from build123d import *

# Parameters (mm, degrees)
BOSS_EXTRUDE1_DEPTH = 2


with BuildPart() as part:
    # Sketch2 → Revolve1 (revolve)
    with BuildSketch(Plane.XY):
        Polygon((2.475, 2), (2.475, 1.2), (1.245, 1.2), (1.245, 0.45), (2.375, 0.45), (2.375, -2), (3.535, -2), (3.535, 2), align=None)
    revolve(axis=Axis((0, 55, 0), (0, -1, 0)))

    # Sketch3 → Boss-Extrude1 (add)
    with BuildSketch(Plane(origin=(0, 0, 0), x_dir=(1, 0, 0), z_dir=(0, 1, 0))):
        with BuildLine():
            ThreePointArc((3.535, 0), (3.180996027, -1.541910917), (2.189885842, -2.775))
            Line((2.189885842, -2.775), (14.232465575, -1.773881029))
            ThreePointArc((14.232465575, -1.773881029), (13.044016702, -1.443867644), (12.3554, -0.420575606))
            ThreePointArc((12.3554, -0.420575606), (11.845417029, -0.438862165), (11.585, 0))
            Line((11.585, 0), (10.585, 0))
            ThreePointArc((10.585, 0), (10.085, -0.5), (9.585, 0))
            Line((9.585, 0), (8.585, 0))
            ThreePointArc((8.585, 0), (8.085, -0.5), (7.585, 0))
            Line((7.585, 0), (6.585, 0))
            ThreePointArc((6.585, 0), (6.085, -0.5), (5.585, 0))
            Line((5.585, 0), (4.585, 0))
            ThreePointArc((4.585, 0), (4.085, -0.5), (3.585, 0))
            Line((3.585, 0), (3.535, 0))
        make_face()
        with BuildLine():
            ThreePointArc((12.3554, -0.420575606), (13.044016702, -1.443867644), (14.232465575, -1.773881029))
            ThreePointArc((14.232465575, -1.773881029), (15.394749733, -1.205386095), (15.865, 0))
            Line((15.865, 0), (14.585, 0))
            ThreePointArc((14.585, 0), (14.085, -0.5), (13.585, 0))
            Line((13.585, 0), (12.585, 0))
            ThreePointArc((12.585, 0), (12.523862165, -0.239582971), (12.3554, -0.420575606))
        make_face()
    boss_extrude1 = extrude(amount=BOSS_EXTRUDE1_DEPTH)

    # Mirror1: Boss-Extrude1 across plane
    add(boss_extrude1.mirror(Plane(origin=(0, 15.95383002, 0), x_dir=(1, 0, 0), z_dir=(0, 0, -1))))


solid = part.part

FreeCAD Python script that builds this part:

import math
import FreeCAD as App
import Part
import Sketcher
from FreeCAD import Vector
Q = App.Units.Quantity

doc = App.newDocument("Part")
params = doc.addObject("Spreadsheet::Sheet", "Params")
for row, (alias, value) in enumerate([
    ("sketch1_height", "4 mm"),
    ("sketch1_height2", "0.8 mm"),
    ("sketch1_width", "1.23 mm"),
    ("sketch1_width2", "1.13 mm"),
    ("sketch1_width3", "1.16 mm"),
    ("revolution_angle", "360 deg"),
    ("sketch2_radius", "0.5 mm"),
    ("sketch2_width", "1 mm"),
    ("sketch2_radius2", "1.78 mm"),
    ("sketch2_width2", "0.05 mm"),
    ("pad1_length", "2 mm"),
], start=1):
    params.set(f"A{row}", alias)
    params.set(f"B{row}", "=" + value)
    params.setAlias(f"B{row}", alias)

body = doc.addObject("PartDesign::Body", "Body")

sketch1 = body.newObject("Sketcher::SketchObject", "Sketch")
sketch1.AttachmentSupport = (doc.getObject("XY_Plane"), [""])
sketch1.MapMode = "FlatFace"
sketch1.addGeometry(Part.LineSegment(Vector(2.5, 2, 0), Vector(2.5, 1.2, 0)), False)
sketch1.addGeometry(Part.LineSegment(Vector(2.5, 1.2, 0), Vector(1.2, 1.2, 0)), False)
sketch1.addGeometry(Part.LineSegment(Vector(1.2, 1.2, 0), Vector(1.2, 0.5, 0)), False)
sketch1.addGeometry(Part.LineSegment(Vector(1.2, 0.5, 0), Vector(2.4, 0.5, 0)), False)
sketch1.addGeometry(Part.LineSegment(Vector(2.4, 0.5, 0), Vector(2.4, -2, 0)), False)
sketch1.addGeometry(Part.LineSegment(Vector(2.4, -2, 0), Vector(3.5, -2, 0)), False)
sketch1.addGeometry(Part.LineSegment(Vector(3.5, -2, 0), Vector(3.5, 2, 0)), False)
sketch1.addGeometry(Part.LineSegment(Vector(3.5, 2, 0), Vector(2.5, 2, 0)), False)
sketch1.addConstraint(Sketcher.Constraint("Coincident", 0, 2, 1, 1))
sketch1.addConstraint(Sketcher.Constraint("Coincident", 1, 2, 2, 1))
sketch1.addConstraint(Sketcher.Constraint("Coincident", 2, 2, 3, 1))
sketch1.addConstraint(Sketcher.Constraint("Coincident", 3, 2, 4, 1))
sketch1.addConstraint(Sketcher.Constraint("Coincident", 4, 2, 5, 1))
sketch1.addConstraint(Sketcher.Constraint("Coincident", 5, 2, 6, 1))
sketch1.addConstraint(Sketcher.Constraint("Coincident", 6, 2, 7, 1))
sketch1.addConstraint(Sketcher.Constraint("Coincident", 7, 2, 0, 1))
sketch1.addConstraint(Sketcher.Constraint("Vertical", 0))
sketch1.addConstraint(Sketcher.Constraint("Horizontal", 1))
sketch1.addConstraint(Sketcher.Constraint("Vertical", 2))
sketch1.addConstraint(Sketcher.Constraint("Horizontal", 3))
sketch1.addConstraint(Sketcher.Constraint("Vertical", 4))
sketch1.addConstraint(Sketcher.Constraint("Horizontal", 5))
sketch1.addConstraint(Sketcher.Constraint("Vertical", 6))
sketch1.addConstraint(Sketcher.Constraint("Horizontal", 7))
sketch1.addConstraint(Sketcher.Constraint("DistanceY", 6, 1, 6, 2, Q("4 mm")))
sketch1.addConstraint(Sketcher.Constraint("DistanceY", 0, 2, 0, 1, Q("0.8 mm")))
sketch1.addConstraint(Sketcher.Constraint("DistanceY", 4, 2, -1, 1, Q("2 mm")))
sketch1.addConstraint(Sketcher.Constraint("DistanceX", 1, 2, 1, 1, Q("1.23 mm")))
sketch1.addConstraint(Sketcher.Constraint("DistanceX", 3, 1, 3, 2, Q("1.13 mm")))
sketch1.addConstraint(Sketcher.Constraint("DistanceX", 5, 1, 5, 2, Q("1.16 mm")))
sketch1.addConstraint(Sketcher.Constraint("DistanceY", 2, 2, 2, 1, Q("0.75 mm")))
sketch1.addConstraint(Sketcher.Constraint("DistanceX", -1, 1, 0, 2, Q("2.475 mm")))
sketch1.setExpression("Constraints[16]", "Params.sketch1_height")
sketch1.setExpression("Constraints[17]", "Params.sketch1_height2")
sketch1.setExpression("Constraints[19]", "Params.sketch1_width")
sketch1.setExpression("Constraints[20]", "Params.sketch1_width2")
sketch1.setExpression("Constraints[21]", "Params.sketch1_width3")
revolution = body.newObject("PartDesign::Revolution", "Revolution")
revolution.Profile = sketch1
revolution.ReferenceAxis = (sketch1, ["V_Axis"])
revolution.setExpression("Angle", "Params.revolution_angle")

sketch2 = body.newObject("Sketcher::SketchObject", "Sketch001")
sketch2.AttachmentSupport = (doc.getObject("XZ_Plane"), [""])
sketch2.MapMode = "FlatFace"
sketch2.addGeometry(Part.ArcOfCircle(Part.Circle(Vector(0, 0, 0), Vector(0, 0, 1), 3.535), math.radians(0), math.radians(52)), False)
sketch2.addGeometry(Part.LineSegment(Vector(2.19, 2.775, 0), Vector(14.232, 1.774, 0)), False)
sketch2.addGeometry(Part.ArcOfCircle(Part.Circle(Vector(14.085, 0, 0), Vector(0, 0, 1), 1.78), math.radians(0), math.radians(85)), False)
sketch2.addGeometry(Part.LineSegment(Vector(15.865, 0, 0), Vector(14.585, 0, 0)), False)
sketch2.addGeometry(Part.ArcOfCircle(Part.Circle(Vector(14.085, 0, 0), Vector(0, 0, 1), 0.5), math.radians(0), math.radians(180)), False)
sketch2.addGeometry(Part.LineSegment(Vector(13.585, 0, 0), Vector(12.585, 0, 0)), False)
sketch2.addGeometry(Part.ArcOfCircle(Part.Circle(Vector(12.085, 0, 0), Vector(0, 0, 1), 0.5), math.radians(0), math.radians(57)), False)
sketch2.addGeometry(Part.ArcOfCircle(Part.Circle(Vector(12.085, 0, 0), Vector(0, 0, 1), 0.5), math.radians(57), math.radians(180)), False)
sketch2.addGeometry(Part.LineSegment(Vector(11.585, 0, 0), Vector(10.585, 0, 0)), False)
sketch2.addGeometry(Part.ArcOfCircle(Part.Circle(Vector(10.085, 0, 0), Vector(0, 0, 1), 0.5), math.radians(0), math.radians(180)), False)
sketch2.addGeometry(Part.LineSegment(Vector(9.585, 0, 0), Vector(8.585, 0, 0)), False)
sketch2.addGeometry(Part.ArcOfCircle(Part.Circle(Vector(8.085, 0, 0), Vector(0, 0, 1), 0.5), math.radians(0), math.radians(180)), False)
sketch2.addGeometry(Part.LineSegment(Vector(7.585, 0, 0), Vector(6.585, 0, 0)), False)
sketch2.addGeometry(Part.ArcOfCircle(Part.Circle(Vector(6.085, 0, 0), Vector(0, 0, 1), 0.5), math.radians(0), math.radians(180)), False)
sketch2.addGeometry(Part.LineSegment(Vector(5.585, 0, 0), Vector(4.585, 0, 0)), False)
sketch2.addGeometry(Part.ArcOfCircle(Part.Circle(Vector(4.085, 0, 0), Vector(0, 0, 1), 0.5), math.radians(0), math.radians(180)), False)
sketch2.addGeometry(Part.LineSegment(Vector(3.585, 0, 0), Vector(3.535, 0, 0)), False)
sketch2.addConstraint(Sketcher.Constraint("Coincident", 0, 2, 1, 1))
sketch2.addConstraint(Sketcher.Constraint("Tangent", 1, 2, 2, 2))
sketch2.addConstraint(Sketcher.Constraint("Coincident", 2, 1, 3, 1))
sketch2.addConstraint(Sketcher.Constraint("Coincident", 3, 2, 4, 1))
sketch2.addConstraint(Sketcher.Constraint("Coincident", 4, 2, 5, 1))
sketch2.addConstraint(Sketcher.Constraint("Coincident", 5, 2, 6, 1))
sketch2.addConstraint(Sketcher.Constraint("Tangent", 6, 2, 7, 1))
sketch2.addConstraint(Sketcher.Constraint("Coincident", 7, 2, 8, 1))
sketch2.addConstraint(Sketcher.Constraint("Coincident", 8, 2, 9, 1))
sketch2.addConstraint(Sketcher.Constraint("Coincident", 9, 2, 10, 1))
sketch2.addConstraint(Sketcher.Constraint("Coincident", 10, 2, 11, 1))
sketch2.addConstraint(Sketcher.Constraint("Coincident", 11, 2, 12, 1))
sketch2.addConstraint(Sketcher.Constraint("Coincident", 12, 2, 13, 1))
sketch2.addConstraint(Sketcher.Constraint("Coincident", 13, 2, 14, 1))
sketch2.addConstraint(Sketcher.Constraint("Coincident", 14, 2, 15, 1))
sketch2.addConstraint(Sketcher.Constraint("Coincident", 15, 2, 16, 1))
sketch2.addConstraint(Sketcher.Constraint("Coincident", 16, 2, 0, 1))
sketch2.addConstraint(Sketcher.Constraint("Horizontal", 3))
sketch2.addConstraint(Sketcher.Constraint("Horizontal", 5))
sketch2.addConstraint(Sketcher.Constraint("Horizontal", 8))
sketch2.addConstraint(Sketcher.Constraint("Horizontal", 10))
sketch2.addConstraint(Sketcher.Constraint("Horizontal", 12))
sketch2.addConstraint(Sketcher.Constraint("Horizontal", 14))
sketch2.addConstraint(Sketcher.Constraint("Horizontal", 16))
sketch2.addConstraint(Sketcher.Constraint("Coincident", 0, 3, -1, 1))
sketch2.addConstraint(Sketcher.Constraint("Coincident", 4, 3, 2, 3))
sketch2.addConstraint(Sketcher.Constraint("Equal", 4, 6))
sketch2.addConstraint(Sketcher.Constraint("Equal", 6, 7))
sketch2.addConstraint(Sketcher.Constraint("Equal", 7, 9))
sketch2.addConstraint(Sketcher.Constraint("Equal", 9, 11))
sketch2.addConstraint(Sketcher.Constraint("Equal", 11, 13))
sketch2.addConstraint(Sketcher.Constraint("Equal", 13, 15))
sketch2.addConstraint(Sketcher.Constraint("PointOnObject", 2, 3, -1))
sketch2.addConstraint(Sketcher.Constraint("PointOnObject", 6, 3, -1))
sketch2.addConstraint(Sketcher.Constraint("PointOnObject", 9, 3, -1))
sketch2.addConstraint(Sketcher.Constraint("PointOnObject", 11, 3, -1))
sketch2.addConstraint(Sketcher.Constraint("PointOnObject", 13, 3, -1))
sketch2.addConstraint(Sketcher.Constraint("PointOnObject", 15, 3, -1))
sketch2.addConstraint(Sketcher.Constraint("PointOnObject", 2, 1, -1))
sketch2.addConstraint(Sketcher.Constraint("PointOnObject", 4, 2, -1))
sketch2.addConstraint(Sketcher.Constraint("PointOnObject", 7, 2, -1))
sketch2.addConstraint(Sketcher.Constraint("PointOnObject", 9, 2, -1))
sketch2.addConstraint(Sketcher.Constraint("PointOnObject", 11, 2, -1))
sketch2.addConstraint(Sketcher.Constraint("PointOnObject", 13, 2, -1))
sketch2.addConstraint(Sketcher.Constraint("PointOnObject", 15, 2, -1))
sketch2.addConstraint(Sketcher.Constraint("Equal", 5, 8))
sketch2.addConstraint(Sketcher.Constraint("Equal", 8, 10))
sketch2.addConstraint(Sketcher.Constraint("Equal", 10, 12))
sketch2.addConstraint(Sketcher.Constraint("Equal", 12, 14))
sketch2.addConstraint(Sketcher.Constraint("Radius", 4, Q("0.5 mm")))
sketch2.addConstraint(Sketcher.Constraint("DistanceX", 5, 2, 5, 1, Q("1 mm")))
sketch2.addConstraint(Sketcher.Constraint("Radius", 2, Q("1.78 mm")))
sketch2.addConstraint(Sketcher.Constraint("Radius", 0, Q("3.535 mm")))
sketch2.addConstraint(Sketcher.Constraint("DistanceX", 16, 2, 16, 1, Q("0.05 mm")))
sketch2.addConstraint(Sketcher.Constraint("DistanceY", -1, 1, 0, 2, Q("2.775 mm")))
sketch2.addConstraint(Sketcher.Constraint("DistanceX", -1, 1, 6, 2, Q("12.3554 mm")))
sketch2.setExpression("Constraints[49]", "Params.sketch2_radius")
sketch2.setExpression("Constraints[50]", "Params.sketch2_width")
sketch2.setExpression("Constraints[51]", "Params.sketch2_radius2")
sketch2.setExpression("Constraints[53]", "Params.sketch2_width2")
pad1 = body.newObject("PartDesign::Pad", "Pad")
pad1.Profile = sketch2
pad1.setExpression("Length", "Params.pad1_length")
pad1.Reversed = True
doc.recompute()

mirrored = body.newObject("PartDesign::Mirrored", "Mirrored")
mirrored.Originals = [pad1]
mirrored.MirrorPlane = (doc.getObject("XY_Plane"), [""])
body.Tip = mirrored

doc.recompute()
